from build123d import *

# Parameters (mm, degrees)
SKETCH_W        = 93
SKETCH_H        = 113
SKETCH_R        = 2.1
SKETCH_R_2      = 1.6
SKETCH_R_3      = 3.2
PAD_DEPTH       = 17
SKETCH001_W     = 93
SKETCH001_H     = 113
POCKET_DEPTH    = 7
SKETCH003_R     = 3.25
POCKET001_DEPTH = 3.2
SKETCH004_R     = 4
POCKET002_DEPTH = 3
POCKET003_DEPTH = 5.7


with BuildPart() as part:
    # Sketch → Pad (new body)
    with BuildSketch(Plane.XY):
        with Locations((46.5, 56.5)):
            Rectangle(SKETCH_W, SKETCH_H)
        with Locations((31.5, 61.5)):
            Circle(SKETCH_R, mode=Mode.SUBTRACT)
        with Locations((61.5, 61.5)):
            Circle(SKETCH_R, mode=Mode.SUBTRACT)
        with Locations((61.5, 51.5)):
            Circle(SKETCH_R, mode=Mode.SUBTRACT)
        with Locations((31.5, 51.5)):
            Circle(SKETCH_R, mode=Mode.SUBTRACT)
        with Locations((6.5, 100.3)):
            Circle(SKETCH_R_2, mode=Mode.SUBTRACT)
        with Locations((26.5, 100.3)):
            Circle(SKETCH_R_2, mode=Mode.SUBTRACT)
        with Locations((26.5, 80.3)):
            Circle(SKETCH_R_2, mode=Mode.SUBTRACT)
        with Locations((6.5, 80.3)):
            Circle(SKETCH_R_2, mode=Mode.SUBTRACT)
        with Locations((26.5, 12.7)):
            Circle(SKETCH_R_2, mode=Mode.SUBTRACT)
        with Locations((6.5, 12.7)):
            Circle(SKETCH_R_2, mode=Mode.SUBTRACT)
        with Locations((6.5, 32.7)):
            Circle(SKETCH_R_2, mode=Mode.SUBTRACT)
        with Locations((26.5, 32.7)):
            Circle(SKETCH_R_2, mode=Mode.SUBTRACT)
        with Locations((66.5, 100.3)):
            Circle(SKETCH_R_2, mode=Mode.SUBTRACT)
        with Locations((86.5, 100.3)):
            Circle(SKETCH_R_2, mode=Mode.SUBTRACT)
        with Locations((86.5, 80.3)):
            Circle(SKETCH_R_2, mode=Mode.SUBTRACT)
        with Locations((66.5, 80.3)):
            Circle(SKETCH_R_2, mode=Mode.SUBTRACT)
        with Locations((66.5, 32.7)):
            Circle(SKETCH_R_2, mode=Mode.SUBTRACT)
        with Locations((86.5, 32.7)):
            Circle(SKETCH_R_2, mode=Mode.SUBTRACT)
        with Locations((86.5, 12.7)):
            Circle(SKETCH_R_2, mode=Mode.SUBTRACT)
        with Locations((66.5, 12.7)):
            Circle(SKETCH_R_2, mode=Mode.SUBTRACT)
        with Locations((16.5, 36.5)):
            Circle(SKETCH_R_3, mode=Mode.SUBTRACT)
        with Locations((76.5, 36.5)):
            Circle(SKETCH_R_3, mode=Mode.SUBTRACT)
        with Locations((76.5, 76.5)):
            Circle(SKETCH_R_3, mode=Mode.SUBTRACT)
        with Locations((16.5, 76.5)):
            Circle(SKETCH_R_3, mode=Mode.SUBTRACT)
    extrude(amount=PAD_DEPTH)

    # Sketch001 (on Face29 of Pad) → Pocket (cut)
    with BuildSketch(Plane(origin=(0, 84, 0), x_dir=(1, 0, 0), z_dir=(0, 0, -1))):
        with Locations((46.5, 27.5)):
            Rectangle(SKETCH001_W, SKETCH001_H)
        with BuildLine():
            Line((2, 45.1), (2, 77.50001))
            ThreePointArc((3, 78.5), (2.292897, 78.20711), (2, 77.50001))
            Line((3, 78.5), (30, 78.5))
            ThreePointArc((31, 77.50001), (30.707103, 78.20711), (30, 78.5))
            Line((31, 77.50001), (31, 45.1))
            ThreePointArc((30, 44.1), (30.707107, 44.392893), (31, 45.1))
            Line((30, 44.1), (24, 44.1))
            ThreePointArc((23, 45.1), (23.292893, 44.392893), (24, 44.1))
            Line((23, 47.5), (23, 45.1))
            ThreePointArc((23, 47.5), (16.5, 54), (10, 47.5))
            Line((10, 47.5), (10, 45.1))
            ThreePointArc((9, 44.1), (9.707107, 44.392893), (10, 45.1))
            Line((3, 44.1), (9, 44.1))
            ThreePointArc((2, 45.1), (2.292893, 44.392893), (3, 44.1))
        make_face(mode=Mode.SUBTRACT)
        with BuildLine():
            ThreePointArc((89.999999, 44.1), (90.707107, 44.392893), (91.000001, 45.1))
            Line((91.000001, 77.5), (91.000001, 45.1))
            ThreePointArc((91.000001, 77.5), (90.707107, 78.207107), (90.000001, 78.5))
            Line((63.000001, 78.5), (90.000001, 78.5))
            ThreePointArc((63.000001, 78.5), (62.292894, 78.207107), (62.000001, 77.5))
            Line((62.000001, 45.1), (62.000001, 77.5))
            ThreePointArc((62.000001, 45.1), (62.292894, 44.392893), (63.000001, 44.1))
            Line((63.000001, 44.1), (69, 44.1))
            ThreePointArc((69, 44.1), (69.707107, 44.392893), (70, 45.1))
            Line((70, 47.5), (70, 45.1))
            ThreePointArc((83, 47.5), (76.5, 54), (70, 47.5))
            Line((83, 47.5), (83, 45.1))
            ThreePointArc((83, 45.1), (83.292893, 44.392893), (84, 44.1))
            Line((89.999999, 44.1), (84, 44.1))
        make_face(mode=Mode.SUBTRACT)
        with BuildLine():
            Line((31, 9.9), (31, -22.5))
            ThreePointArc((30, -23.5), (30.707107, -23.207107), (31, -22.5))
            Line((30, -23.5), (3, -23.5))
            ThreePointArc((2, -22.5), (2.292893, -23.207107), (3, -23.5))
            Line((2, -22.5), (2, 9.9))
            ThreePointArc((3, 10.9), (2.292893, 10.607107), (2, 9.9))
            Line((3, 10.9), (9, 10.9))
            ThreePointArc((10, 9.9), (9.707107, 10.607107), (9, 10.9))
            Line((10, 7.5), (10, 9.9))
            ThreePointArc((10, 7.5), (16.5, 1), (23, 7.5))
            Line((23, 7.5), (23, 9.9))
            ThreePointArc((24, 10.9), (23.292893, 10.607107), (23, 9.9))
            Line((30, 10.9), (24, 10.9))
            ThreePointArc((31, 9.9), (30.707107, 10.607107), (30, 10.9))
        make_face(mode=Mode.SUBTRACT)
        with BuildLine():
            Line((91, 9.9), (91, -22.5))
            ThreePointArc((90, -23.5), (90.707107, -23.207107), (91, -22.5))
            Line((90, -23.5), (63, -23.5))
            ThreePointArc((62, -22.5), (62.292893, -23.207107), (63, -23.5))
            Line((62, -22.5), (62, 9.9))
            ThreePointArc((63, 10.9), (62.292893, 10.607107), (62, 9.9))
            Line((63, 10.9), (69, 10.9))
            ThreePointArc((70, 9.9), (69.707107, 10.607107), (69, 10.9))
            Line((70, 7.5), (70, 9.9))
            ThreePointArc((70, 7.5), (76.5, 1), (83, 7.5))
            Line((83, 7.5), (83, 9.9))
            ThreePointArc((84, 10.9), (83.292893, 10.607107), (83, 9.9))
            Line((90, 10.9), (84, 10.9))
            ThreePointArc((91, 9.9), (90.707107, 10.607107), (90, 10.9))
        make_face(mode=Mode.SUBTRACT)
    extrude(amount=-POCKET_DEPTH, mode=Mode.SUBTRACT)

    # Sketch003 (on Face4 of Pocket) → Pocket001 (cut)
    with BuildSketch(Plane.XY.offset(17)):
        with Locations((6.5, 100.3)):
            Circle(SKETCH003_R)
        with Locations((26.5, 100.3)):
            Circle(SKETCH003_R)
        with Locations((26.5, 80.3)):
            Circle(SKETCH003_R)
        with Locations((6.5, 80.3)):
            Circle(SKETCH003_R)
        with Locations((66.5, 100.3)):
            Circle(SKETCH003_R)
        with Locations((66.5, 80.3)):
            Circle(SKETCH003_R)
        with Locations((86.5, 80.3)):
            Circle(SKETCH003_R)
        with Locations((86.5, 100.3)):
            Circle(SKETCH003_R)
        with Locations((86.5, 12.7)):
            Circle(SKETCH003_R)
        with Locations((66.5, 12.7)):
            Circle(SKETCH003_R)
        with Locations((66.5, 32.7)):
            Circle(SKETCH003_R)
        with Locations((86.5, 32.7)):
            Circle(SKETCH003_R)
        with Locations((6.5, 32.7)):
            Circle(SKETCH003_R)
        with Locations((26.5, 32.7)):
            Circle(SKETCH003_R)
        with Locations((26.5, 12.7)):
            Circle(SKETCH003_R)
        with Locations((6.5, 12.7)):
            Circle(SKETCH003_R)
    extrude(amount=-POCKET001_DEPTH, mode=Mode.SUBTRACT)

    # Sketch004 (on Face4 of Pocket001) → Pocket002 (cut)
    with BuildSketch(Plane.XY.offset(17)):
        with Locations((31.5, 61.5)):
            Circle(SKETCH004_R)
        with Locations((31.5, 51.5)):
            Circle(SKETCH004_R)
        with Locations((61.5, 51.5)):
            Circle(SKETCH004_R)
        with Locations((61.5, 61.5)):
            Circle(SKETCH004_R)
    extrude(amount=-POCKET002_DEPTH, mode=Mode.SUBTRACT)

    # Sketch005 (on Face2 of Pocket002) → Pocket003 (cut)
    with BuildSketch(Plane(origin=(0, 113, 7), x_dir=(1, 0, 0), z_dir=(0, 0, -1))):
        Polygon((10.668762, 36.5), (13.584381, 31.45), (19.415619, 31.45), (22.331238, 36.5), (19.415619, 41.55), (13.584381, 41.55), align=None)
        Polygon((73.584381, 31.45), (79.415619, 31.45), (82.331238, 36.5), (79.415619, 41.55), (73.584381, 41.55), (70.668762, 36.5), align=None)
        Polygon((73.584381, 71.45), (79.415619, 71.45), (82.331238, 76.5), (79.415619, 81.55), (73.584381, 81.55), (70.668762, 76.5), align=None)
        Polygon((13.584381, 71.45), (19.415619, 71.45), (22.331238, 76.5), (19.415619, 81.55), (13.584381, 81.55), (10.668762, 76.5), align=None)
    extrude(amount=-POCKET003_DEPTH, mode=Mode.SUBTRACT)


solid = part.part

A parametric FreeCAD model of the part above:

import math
import FreeCAD as App
import Part
import Sketcher
Q = App.Units.Quantity


def add_polygon(sketch, points):
    """Adds a closed chain of lines whose ends are joined by coincident constraints."""
    first, n = sketch.GeometryCount, len(points)
    for a, b in zip(points, points[1:] + points[:1]):
        sketch.addGeometry(Part.LineSegment(App.Vector(*a, 0), App.Vector(*b, 0)), False)
    for i in range(n):
        sketch.addConstraint(Sketcher.Constraint("Coincident", first + i, 2, first + (i + 1) % n, 1))

doc = App.newDocument("Part")
params = doc.addObject("Spreadsheet::Sheet", "Params")
for row, (alias, value) in enumerate([
    ("sketch1_diameter", "3.2 mm"),
    ("sketch1_diameter2", "6.4 mm"),
    ("sketch1_diameter3", "4.2 mm"),
    ("sketch1_width", "93 mm"),
    ("sketch1_height", "113 mm"),
    ("pad1_length", "17 mm"),
    ("sketch2_radius", "0.999999 mm"),
    ("sketch2_radius2", "6.5 mm"),
    ("sketch2_width", "93 mm"),
    ("sketch2_width2", "27 mm"),
    ("sketch2_height", "113 mm"),
    ("pocket1_length", "7 mm"),
    ("sketch3_diameter", "6.5 mm"),
    ("pocket2_length", "3.2 mm"),
    ("sketch4_diameter", "8 mm"),
    ("pocket3_length", "3 mm"),
    ("pocket4_length", "5.7 mm"),
], start=1):
    params.set(f"A{row}", alias)
    params.set(f"B{row}", "=" + value)
    params.setAlias(f"B{row}", alias)

body = doc.addObject("PartDesign::Body", "Body")

sketch1 = doc.addObject("Sketcher::SketchObject", "Sketch")
body.addObject(sketch1)
sketch1.AttachmentSupport = (doc.XY_Plane, [""])
sketch1.MapMode = "FlatFace"
add_polygon(sketch1, [(0, 113), (0, 0), (93, 0), (93, 113)])
sketch1.addGeometry(Part.Circle(App.Vector(6.5, 12.7, 0), App.Vector(0, 0, 1), 1.6), False)
sketch1.addGeometry(Part.Circle(App.Vector(6.5, 32.7, 0), App.Vector(0, 0, 1), 1.6), False)
sketch1.addGeometry(Part.Circle(App.Vector(26.5, 12.7, 0), App.Vector(0, 0, 1), 1.6), False)
sketch1.addGeometry(Part.Circle(App.Vector(26.5, 32.7, 0), App.Vector(0, 0, 1), 1.6), False)
sketch1.addGeometry(Part.Circle(App.Vector(16.5, 36.5, 0), App.Vector(0, 0, 1), 3.2), False)
sketch1.addGeometry(Part.Circle(App.Vector(31.5, 51.5, 0), App.Vector(0, 0, 1), 2.1), False)
sketch1.addGeometry(Part.Circle(App.Vector(66.5, 12.7, 0), App.Vector(0, 0, 1), 1.6), False)
sketch1.addGeometry(Part.Circle(App.Vector(66.5, 32.7, 0), App.Vector(0, 0, 1), 1.6), False)
sketch1.addGeometry(Part.Circle(App.Vector(86.5, 12.7, 0), App.Vector(0, 0, 1), 1.6), False)
sketch1.addGeometry(Part.Circle(App.Vector(86.5, 32.7, 0), App.Vector(0, 0, 1), 1.6), False)
sketch1.addGeometry(Part.Circle(App.Vector(61.5, 51.5, 0), App.Vector(0, 0, 1), 2.1), False)
sketch1.addGeometry(Part.Circle(App.Vector(76.5, 36.5, 0), App.Vector(0, 0, 1), 3.2), False)
sketch1.addGeometry(Part.Circle(App.Vector(16.5, 76.5, 0), App.Vector(0, 0, 1), 3.2), False)
sketch1.addGeometry(Part.Circle(App.Vector(31.5, 61.5, 0), App.Vector(0, 0, 1), 2.1), False)
sketch1.addGeometry(Part.Circle(App.Vector(6.5, 80.3, 0), App.Vector(0, 0, 1), 1.6), False)
sketch1.addGeometry(Part.Circle(App.Vector(6.5, 100.3, 0), App.Vector(0, 0, 1), 1.6), False)
sketch1.addGeometry(Part.Circle(App.Vector(26.5, 80.3, 0), App.Vector(0, 0, 1), 1.6), False)
sketch1.addGeometry(Part.Circle(App.Vector(26.5, 100.3, 0), App.Vector(0, 0, 1), 1.6), False)
sketch1.addGeometry(Part.Circle(App.Vector(61.5, 61.5, 0), App.Vector(0, 0, 1), 2.1), False)
sketch1.addGeometry(Part.Circle(App.Vector(76.5, 76.5, 0), App.Vector(0, 0, 1), 3.2), False)
sketch1.addGeometry(Part.Circle(App.Vector(66.5, 80.3, 0), App.Vector(0, 0, 1), 1.6), False)
sketch1.addGeometry(Part.Circle(App.Vector(66.5, 100.3, 0), App.Vector(0, 0, 1), 1.6), False)
sketch1.addGeometry(Part.Circle(App.Vector(86.5, 80.3, 0), App.Vector(0, 0, 1), 1.6), False)
sketch1.addGeometry(Part.Circle(App.Vector(86.5, 100.3, 0), App.Vector(0, 0, 1), 1.6), False)
sketch1.addConstraint(Sketcher.Constraint("Vertical", 0))
sketch1.addConstraint(Sketcher.Constraint("Horizontal", 1))
sketch1.addConstraint(Sketcher.Constraint("Vertical", 2))
sketch1.addConstraint(Sketcher.Constraint("Horizontal", 3))
sketch1.addConstraint(Sketcher.Constraint("Coincident", 0, 2, -1, 1))
sketch1.addConstraint(Sketcher.Constraint("Equal", 4, 5))
sketch1.addConstraint(Sketcher.Constraint("Equal", 5, 6))
sketch1.addConstraint(Sketcher.Constraint("Equal", 6, 7))
sketch1.addConstraint(Sketcher.Constraint("Equal", 7, 10))
sketch1.addConstraint(Sketcher.Constraint("Equal", 10, 11))
sketch1.addConstraint(Sketcher.Constraint("Equal", 11, 12))
sketch1.addConstraint(Sketcher.Constraint("Equal", 12, 13))
sketch1.addConstraint(Sketcher.Constraint("Equal", 9, 14))
sketch1.addConstraint(Sketcher.Constraint("Equal", 8, 15))
sketch1.addConstraint(Sketcher.Constraint("Equal", 15, 16))
sketch1.addConstraint(Sketcher.Constraint("Equal", 14, 17))
sketch1.addConstraint(Sketcher.Constraint("Equal", 13, 18))
sketch1.addConstraint(Sketcher.Constraint("Equal", 18, 19))
sketch1.addConstraint(Sketcher.Constraint("Equal", 19, 20))
sketch1.addConstraint(Sketcher.Constraint("Equal", 20, 21))
sketch1.addConstraint(Sketcher.Constraint("Equal", 17, 22))
sketch1.addConstraint(Sketcher.Constraint("Equal", 16, 23))
sketch1.addConstraint(Sketcher.Constraint("Equal", 21, 24))
sketch1.addConstraint(Sketcher.Constraint("Equal", 24, 25))
sketch1.addConstraint(Sketcher.Constraint("Equal", 25, 26))
sketch1.addConstraint(Sketcher.Constraint("Equal", 26, 27))
sketch1.addConstraint(Sketcher.Constraint("Horizontal", 4, 3, 6, 3))
sketch1.addConstraint(Sketcher.Constraint("Horizontal", 5, 3, 7, 3))
sketch1.addConstraint(Sketcher.Constraint("Horizontal", 6, 3, 10, 3))
sketch1.addConstraint(Sketcher.Constraint("Horizontal", 7, 3, 11, 3))
sketch1.addConstraint(Sketcher.Constraint("Horizontal", 10, 3, 12, 3))
sketch1.addConstraint(Sketcher.Constraint("Horizontal", 11, 3, 13, 3))
sketch1.addConstraint(Sketcher.Constraint("Horizontal", 9, 3, 14, 3))
sketch1.addConstraint(Sketcher.Constraint("Horizontal", 8, 3, 15, 3))
sketch1.addConstraint(Sketcher.Constraint("Horizontal", 18, 3, 20, 3))
sketch1.addConstraint(Sketcher.Constraint("Horizontal", 19, 3, 21, 3))
sketch1.addConstraint(Sketcher.Constraint("Horizontal", 17, 3, 22, 3))
sketch1.addConstraint(Sketcher.Constraint("Horizontal", 16, 3, 23, 3))
sketch1.addConstraint(Sketcher.Constraint("Horizontal", 20, 3, 24, 3))
sketch1.addConstraint(Sketcher.Constraint("Horizontal", 21, 3, 25, 3))
sketch1.addConstraint(Sketcher.Constraint("Horizontal", 24, 3, 26, 3))
sketch1.addConstraint(Sketcher.Constraint("Horizontal", 25, 3, 27, 3))
sketch1.addConstraint(Sketcher.Constraint("Vertical", 4, 3, 5, 3))
sketch1.addConstraint(Sketcher.Constraint("Vertical", 6, 3, 7, 3))
sketch1.addConstraint(Sketcher.Constraint("Vertical", 10, 3, 11, 3))
sketch1.addConstraint(Sketcher.Constraint("Vertical", 12, 3, 13, 3))
sketch1.addConstraint(Sketcher.Constraint("Vertical", 8, 3, 16, 3))
sketch1.addConstraint(Sketcher.Constraint("Vertical", 9, 3, 17, 3))
sketch1.addConstraint(Sketcher.Constraint("Vertical", 5, 3, 18, 3))
sketch1.addConstraint(Sketcher.Constraint("Vertical", 18, 3, 19, 3))
sketch1.addConstraint(Sketcher.Constraint("Vertical", 7, 3, 20, 3))
sketch1.addConstraint(Sketcher.Constraint("Vertical", 20, 3, 21, 3))
sketch1.addConstraint(Sketcher.Constraint("Vertical", 14, 3, 22, 3))
sketch1.addConstraint(Sketcher.Constraint("Vertical", 15, 3, 23, 3))
sketch1.addConstraint(Sketcher.Constraint("Vertical", 11, 3, 24, 3))
sketch1.addConstraint(Sketcher.Constraint("Vertical", 24, 3, 25, 3))
sketch1.addConstraint(Sketcher.Constraint("Vertical", 13, 3, 26, 3))
sketch1.addConstraint(Sketcher.Constraint("Vertical", 26, 3, 27, 3))
sketch1.addConstraint(Sketcher.Constraint("Diameter", 4, 3.2))
sketch1.addConstraint(Sketcher.Constraint("Diameter", 8, 6.4))
sketch1.addConstraint(Sketcher.Constraint("Diameter", 9, 4.2))
sketch1.addConstraint(Sketcher.Constraint("DistanceX", 1, 1, 1, 2, 93.0))
sketch1.addConstraint(Sketcher.Constraint("DistanceY", 0, 2, 0, 1, 113.0))
sketch1.addConstraint(Sketcher.Constraint("DistanceY", 4, 3, 5, 3, 20.0))
sketch1.addConstraint(Sketcher.Constraint("DistanceX", 4, 3, 6, 3, 20.0))
sketch1.addConstraint(Sketcher.Constraint("DistanceX", 5, 3, 8, 3, 10.0))
sketch1.addConstraint(Sketcher.Constraint("DistanceX", 7, 3, 9, 3, 5.0))
sketch1.addConstraint(Sketcher.Constraint("DistanceY", 8, 3, 9, 3, 15.0))
sketch1.addConstraint(Sketcher.Constraint("DistanceX", 6, 3, 10, 3, 40.0))
sketch1.addConstraint(Sketcher.Constraint("DistanceX", 10, 3, 12, 3, 20.0))
sketch1.addConstraint(Sketcher.Constraint("DistanceX", 14, 3, 11, 3, 5.0))
sketch1.addConstraint(Sketcher.Constraint("DistanceX", 11, 3, 15, 3, 10.0))
sketch1.addConstraint(Sketcher.Constraint("DistanceY", 9, 3, 16, 3, 25.0))
sketch1.addConstraint(Sketcher.Constraint("DistanceY", 9, 3, 17, 3, 10.0))
sketch1.addConstraint(Sketcher.Constraint("DistanceY", 18, 3, 19, 3, 20.0))
sketch1.addConstraint(Sketcher.Constraint("DistanceX", -1, 1, 4, 3, 6.5))
sketch1.addConstraint(Sketcher.Constraint("DistanceY", -1, 1, 4, 3, 12.7))
sketch1.addConstraint(Sketcher.Constraint("DistanceY", -1, 1, 8, 3, 36.5))
sketch1.addConstraint(Sketcher.Constraint("DistanceY", -1, 1, 18, 3, 80.3))
sketch1.setExpression("Constraints[62]", "Params.sketch1_diameter")
sketch1.setExpression("Constraints[63]", "Params.sketch1_diameter2")
sketch1.setExpression("Constraints[64]", "Params.sketch1_diameter3")
sketch1.setExpression("Constraints[65]", "Params.sketch1_width")
sketch1.setExpression("Constraints[66]", "Params.sketch1_height")
pad1 = doc.addObject("PartDesign::Pad", "Pad")
body.addObject(pad1)
pad1.Profile = sketch1
pad1.setExpression("Length", "Params.pad1_length")

sketch2 = doc.addObject("Sketcher::SketchObject", "Sketch001")
body.addObject(sketch2)
sketch2.AttachmentSupport = (doc.XY_Plane, [""])
sketch2.MapMode = "FlatFace"
add_polygon(sketch2, [(0, 0), (0, 113), (93, 113), (93, 0)])
sketch2.addGeometry(Part.ArcOfCircle(Part.Circle(App.Vector(30.000001, 74.099999, 0), App.Vector(0, 0, 1), 0.999999), math.radians(-90.000043), math.radians(0.000043)), False)
sketch2.addGeometry(Part.LineSegment(App.Vector(31, 74.1, 0), App.Vector(31, 106.5, 0)), False)
sketch2.addGeometry(Part.ArcOfCircle(Part.Circle(App.Vector(30.000001, 106.500001, 0), App.Vector(0, 0, 1), 0.999999), math.radians(-0.000043), math.radians(90.000043)), False)
sketch2.addGeometry(Part.LineSegment(App.Vector(30, 107.5, 0), App.Vector(3, 107.5, 0)), False)
sketch2.addGeometry(Part.ArcOfCircle(Part.Circle(App.Vector(2.999999, 106.500001, 0), App.Vector(0, 0, 1), 0.999999), math.radians(89.999957), math.radians(180.000043)), False)
sketch2.addGeometry(Part.LineSegment(App.Vector(2, 106.5, 0), App.Vector(2, 74.1, 0)), False)
sketch2.addGeometry(Part.ArcOfCircle(Part.Circle(App.Vector(2.999999, 74.099999, 0), App.Vector(0, 0, 1), 0.999999), math.radians(179.999957), math.radians(270.000043)), False)
sketch2.addGeometry(Part.LineSegment(App.Vector(3, 73.1, 0), App.Vector(9, 73.1, 0)), False)
sketch2.addGeometry(Part.ArcOfCircle(Part.Circle(App.Vector(9.000001, 74.099999, 0), App.Vector(0, 0, 1), 0.999999), math.radians(-90.000043), math.radians(0.000043)), False)
sketch2.addGeometry(Part.LineSegment(App.Vector(10, 74.1, 0), App.Vector(10, 76.5, 0)), False)
sketch2.addGeometry(Part.ArcOfCircle(Part.Circle(App.Vector(16.5, 76.5, 0), App.Vector(0, 0, 1), 6.5), math.radians(0), math.radians(180)), False)
sketch2.addGeometry(Part.LineSegment(App.Vector(23, 76.5, 0), App.Vector(23, 74.1, 0)), False)
sketch2.addGeometry(Part.ArcOfCircle(Part.Circle(App.Vector(23.999999, 74.099999, 0), App.Vector(0, 0, 1), 0.999999), math.radians(179.999957), math.radians(270.000043)), False)
sketch2.addGeometry(Part.LineSegment(App.Vector(24, 73.1, 0), App.Vector(30, 73.1, 0)), False)
sketch2.addGeometry(Part.ArcOfCircle(Part.Circle(App.Vector(90.000001, 74.099999, 0), App.Vector(0, 0, 1), 0.999999), math.radians(-90.000043), math.radians(0.000043)), False)
sketch2.addGeometry(Part.LineSegment(App.Vector(91, 74.1, 0), App.Vector(91, 106.5, 0)), False)
sketch2.addGeometry(Part.ArcOfCircle(Part.Circle(App.Vector(90.000001, 106.500001, 0), App.Vector(0, 0, 1), 0.999999), math.radians(-0.000043), math.radians(90.000043)), False)
sketch2.addGeometry(Part.LineSegment(App.Vector(90, 107.5, 0), App.Vector(63, 107.5, 0)), False)
sketch2.addGeometry(Part.ArcOfCircle(Part.Circle(App.Vector(62.999999, 106.500001, 0), App.Vector(0, 0, 1), 0.999999), math.radians(89.999957), math.radians(180.000043)), False)
sketch2.addGeometry(Part.LineSegment(App.Vector(62, 106.5, 0), App.Vector(62, 74.1, 0)), False)
sketch2.addGeometry(Part.ArcOfCircle(Part.Circle(App.Vector(62.999999, 74.099999, 0), App.Vector(0, 0, 1), 0.999999), math.radians(179.999957), math.radians(270.000043)), False)
sketch2.addGeometry(Part.LineSegment(App.Vector(63, 73.1, 0), App.Vector(69, 73.1, 0)), False)
sketch2.addGeometry(Part.ArcOfCircle(Part.Circle(App.Vector(69.000001, 74.099999, 0), App.Vector(0, 0, 1), 0.999999), math.radians(-90.000043), math.radians(0.000043)), False)
sketch2.addGeometry(Part.LineSegment(App.Vector(70, 74.1, 0), App.Vector(70, 76.5, 0)), False)
sketch2.addGeometry(Part.ArcOfCircle(Part.Circle(App.Vector(76.5, 76.5, 0), App.Vector(0, 0, 1), 6.5), math.radians(0), math.radians(180)), False)
sketch2.addGeometry(Part.LineSegment(App.Vector(83, 76.5, 0), App.Vector(83, 74.1, 0)), False)
sketch2.addGeometry(Part.ArcOfCircle(Part.Circle(App.Vector(83.999999, 74.099999, 0), App.Vector(0, 0, 1), 0.999999), math.radians(179.999957), math.radians(270.000043)), False)
sketch2.addGeometry(Part.LineSegment(App.Vector(84, 73.1, 0), App.Vector(90, 73.1, 0)), False)
sketch2.addGeometry(Part.ArcOfCircle(Part.Circle(App.Vector(2.999999, 38.900001, 0), App.Vector(0, 0, 1), 0.999999), math.radians(89.999957), math.radians(180.000043)), False)
sketch2.addGeometry(Part.LineSegment(App.Vector(2, 38.9, 0), App.Vector(2, 6.49999, 0)), False)
sketch2.addGeometry(Part.ArcOfCircle(Part.Circle(App.Vector(3.000001, 6.500001, 0), App.Vector(0, 0, 1), 1.000001), math.radians(-179.999372), math.radians(-90.000055)), False)
sketch2.addGeometry(Part.LineSegment(App.Vector(3, 5.5, 0), App.Vector(30, 5.5, 0)), False)
sketch2.addGeometry(Part.ArcOfCircle(Part.Circle(App.Vector(29.999999, 6.500001, 0), App.Vector(0, 0, 1), 1.000001), math.radians(-89.999945), math.radians(-0.000628)), False)
sketch2.addGeometry(Part.LineSegment(App.Vector(31, 6.49999, 0), App.Vector(31, 38.9, 0)), False)
sketch2.addGeometry(Part.ArcOfCircle(Part.Circle(App.Vector(30.000001, 38.900001, 0), App.Vector(0, 0, 1), 0.999999), math.radians(-0.000043), math.radians(90.000043)), False)
sketch2.addGeometry(Part.LineSegment(App.Vector(30, 39.9, 0), App.Vector(24, 39.9, 0)), False)
sketch2.addGeometry(Part.ArcOfCircle(Part.Circle(App.Vector(23.999999, 38.900001, 0), App.Vector(0, 0, 1), 0.999999), math.radians(89.999957), math.radians(180.000043)), False)
sketch2.addGeometry(Part.LineSegment(App.Vector(23, 38.9, 0), App.Vector(23, 36.5, 0)), False)
sketch2.addGeometry(Part.ArcOfCircle(Part.Circle(App.Vector(16.5, 36.5, 0), App.Vector(0, 0, 1), 6.5), math.radians(180), math.radians(360)), False)
sketch2.addGeometry(Part.LineSegment(App.Vector(10, 36.5, 0), App.Vector(10, 38.9, 0)), False)
sketch2.addGeometry(Part.ArcOfCircle(Part.Circle(App.Vector(9.000001, 38.900001, 0), App.Vector(0, 0, 1), 0.999999), math.radians(-0.000043), math.radians(90.000043)), False)
sketch2.addGeometry(Part.LineSegment(App.Vector(9, 39.9, 0), App.Vector(3, 39.9, 0)), False)
sketch2.addGeometry(Part.ArcOfCircle(Part.Circle(App.Vector(90, 38.899999, 0), App.Vector(0, 0, 1), 1.000001), math.radians(0.000055), math.radians(90.00006)), False)
sketch2.addGeometry(Part.LineSegment(App.Vector(89.999999, 39.9, 0), App.Vector(84, 39.9, 0)), False)
sketch2.addGeometry(Part.ArcOfCircle(Part.Circle(App.Vector(83.999999, 38.900001, 0), App.Vector(0, 0, 1), 0.999999), math.radians(89.999957), math.radians(180.000043)), False)
sketch2.addGeometry(Part.LineSegment(App.Vector(83, 38.9, 0), App.Vector(83, 36.5, 0)), False)
sketch2.addGeometry(Part.ArcOfCircle(Part.Circle(App.Vector(76.5, 36.5, 0), App.Vector(0, 0, 1), 6.5), math.radians(180), math.radians(360)), False)
sketch2.addGeometry(Part.LineSegment(App.Vector(70, 36.5, 0), App.Vector(70, 38.9, 0)), False)
sketch2.addGeometry(Part.ArcOfCircle(Part.Circle(App.Vector(69.000001, 38.900001, 0), App.Vector(0, 0, 1), 0.999999), math.radians(-0.000043), math.radians(90.000043)), False)
sketch2.addGeometry(Part.LineSegment(App.Vector(69, 39.9, 0), App.Vector(63.000001, 39.9, 0)), False)
sketch2.addGeometry(Part.ArcOfCircle(Part.Circle(App.Vector(63, 38.900001, 0), App.Vector(0, 0, 1), 0.999999), math.radians(89.999957), math.radians(180.000043)), False)
sketch2.addGeometry(Part.LineSegment(App.Vector(62.000001, 38.9, 0), App.Vector(62.000001, 6.5, 0)), False)
sketch2.addGeometry(Part.ArcOfCircle(Part.Circle(App.Vector(63, 6.499999, 0), App.Vector(0, 0, 1), 0.999999), math.radians(179.999957), math.radians(270.000043)), False)
sketch2.addGeometry(Part.LineSegment(App.Vector(63.000001, 5.5, 0), App.Vector(90.000001, 5.5, 0)), False)
sketch2.addGeometry(Part.ArcOfCircle(Part.Circle(App.Vector(90, 6.500001, 0), App.Vector(0, 0, 1), 1.000001), math.radians(-89.999945), math.radians(-0.000055)), False)
sketch2.addGeometry(Part.LineSegment(App.Vector(91.000001, 6.5, 0), App.Vector(91.000001, 38.9, 0)), False)
sketch2.addConstraint(Sketcher.Constraint("Tangent", 4, 2, 5, 1))
sketch2.addConstraint(Sketcher.Constraint("Tangent", 5, 2, 6, 1))
sketch2.addConstraint(Sketcher.Constraint("Tangent", 6, 2, 7, 1))
sketch2.addConstraint(Sketcher.Constraint("Tangent", 7, 2, 8, 1))
sketch2.addConstraint(Sketcher.Constraint("Tangent", 8, 2, 9, 1))
sketch2.addConstraint(Sketcher.Constraint("Tangent", 9, 2, 10, 1))
sketch2.addConstraint(Sketcher.Constraint("Tangent", 10, 2, 11, 1))
sketch2.addConstraint(Sketcher.Constraint("Tangent", 11, 2, 12, 1))
sketch2.addConstraint(Sketcher.Constraint("Tangent", 12, 2, 13, 1))
sketch2.addConstraint(Sketcher.Constraint("Tangent", 13, 2, 14, 2))
sketch2.addConstraint(Sketcher.Constraint("Tangent", 14, 1, 15, 1))
sketch2.addConstraint(Sketcher.Constraint("Tangent", 15, 2, 16, 1))
sketch2.addConstraint(Sketcher.Constraint("Tangent", 16, 2, 17, 1))
sketch2.addConstraint(Sketcher.Constraint("Tangent", 17, 2, 4, 1))
sketch2.addConstraint(Sketcher.Constraint("Tangent", 18, 2, 19, 1))
sketch2.addConstraint(Sketcher.Constraint("Tangent", 19, 2, 20, 1))
sketch2.addConstraint(Sketcher.Constraint("Tangent", 20, 2, 21, 1))
sketch2.addConstraint(Sketcher.Constraint("Tangent", 21, 2, 22, 1))
sketch2.addConstraint(Sketcher.Constraint("Tangent", 22, 2, 23, 1))
sketch2.addConstraint(Sketcher.Constraint("Tangent", 23, 2, 24, 1))
sketch2.addConstraint(Sketcher.Constraint("Tangent", 24, 2, 25, 1))
sketch2.addConstraint(Sketcher.Constraint("Tangent", 25, 2, 26, 1))
sketch2.addConstraint(Sketcher.Constraint("Tangent", 26, 2, 27, 1))
sketch2.addConstraint(Sketcher.Constraint("Tangent", 27, 2, 28, 2))
sketch2.addConstraint(Sketcher.Constraint("Tangent", 28, 1, 29, 1))
sketch2.addConstraint(Sketcher.Constraint("Tangent", 29, 2, 30, 1))
sketch2.addConstraint(Sketcher.Constraint("Tangent", 30, 2, 31, 1))
sketch2.addConstraint(Sketcher.Constraint("Tangent", 31, 2, 18, 1))
sketch2.addConstraint(Sketcher.Constraint("Tangent", 32, 2, 33, 1))
sketch2.addConstraint(Sketcher.Constraint("Coincident", 33, 2, 34, 1))
sketch2.addConstraint(Sketcher.Constraint("Tangent", 34, 2, 35, 1))
sketch2.addConstraint(Sketcher.Constraint("Tangent", 35, 2, 36, 1))
sketch2.addConstraint(Sketcher.Constraint("Coincident", 36, 2, 37, 1))
sketch2.addConstraint(Sketcher.Constraint("Tangent", 37, 2, 38, 1))
sketch2.addConstraint(Sketcher.Constraint("Tangent", 38, 2, 39, 1))
sketch2.addConstraint(Sketcher.Constraint("Tangent", 39, 2, 40, 1))
sketch2.addConstraint(Sketcher.Constraint("Tangent", 40, 2, 41, 1))
sketch2.addConstraint(Sketcher.Constraint("Tangent", 41, 2, 42, 2))
sketch2.addConstraint(Sketcher.Constraint("Tangent", 42, 1, 43, 1))
sketch2.addConstraint(Sketcher.Constraint("Tangent", 43, 2, 44, 1))
sketch2.addConstraint(Sketcher.Constraint("Tangent", 44, 2, 45, 1))
sketch2.addConstraint(Sketcher.Constraint("Tangent", 45, 2, 32, 1))
sketch2.addConstraint(Sketcher.Constraint("Tangent", 46, 2, 47, 1))
sketch2.addConstraint(Sketcher.Constraint("Tangent", 47, 2, 48, 1))
sketch2.addConstraint(Sketcher.Constraint("Tangent", 48, 2, 49, 1))
sketch2.addConstraint(Sketcher.Constraint("Tangent", 49, 2, 50, 2))
sketch2.addConstraint(Sketcher.Constraint("Tangent", 50, 1, 51, 1))
sketch2.addConstraint(Sketcher.Constraint("Tangent", 51, 2, 52, 1))
sketch2.addConstraint(Sketcher.Constraint("Tangent", 52, 2, 53, 1))
sketch2.addConstraint(Sketcher.Constraint("Tangent", 53, 2, 54, 1))
sketch2.addConstraint(Sketcher.Constraint("Tangent", 54, 2, 55, 1))
sketch2.addConstraint(Sketcher.Constraint("Tangent", 55, 2, 56, 1))
sketch2.addConstraint(Sketcher.Constraint("Tangent", 56, 2, 57, 1))
sketch2.addConstraint(Sketcher.Constraint("Tangent", 57, 2, 58, 1))
sketch2.addConstraint(Sketcher.Constraint("Tangent", 58, 2, 59, 1))
sketch2.addConstraint(Sketcher.Constraint("Tangent", 59, 2, 46, 1))
sketch2.addConstraint(Sketcher.Constraint("Vertical", 0))
sketch2.addConstraint(Sketcher.Constraint("Horizontal", 1))
sketch2.addConstraint(Sketcher.Constraint("Vertical", 2))
sketch2.addConstraint(Sketcher.Constraint("Horizontal", 3))
sketch2.addConstraint(Sketcher.Constraint("Vertical", 5))
sketch2.addConstraint(Sketcher.Constraint("Horizontal", 7))
sketch2.addConstraint(Sketcher.Constraint("Vertical", 9))
sketch2.addConstraint(Sketcher.Constraint("Horizontal", 11))
sketch2.addConstraint(Sketcher.Constraint("Vertical", 13))
sketch2.addConstraint(Sketcher.Constraint("Vertical", 15))
sketch2.addConstraint(Sketcher.Constraint("Horizontal", 17))
sketch2.addConstraint(Sketcher.Constraint("Vertical", 19))
sketch2.addConstraint(Sketcher.Constraint("Horizontal", 21))
sketch2.addConstraint(Sketcher.Constraint("Vertical", 23))
sketch2.addConstraint(Sketcher.Constraint("Horizontal", 25))
sketch2.addConstraint(Sketcher.Constraint("Vertical", 27))
sketch2.addConstraint(Sketcher.Constraint("Vertical", 29))
sketch2.addConstraint(Sketcher.Constraint("Horizontal", 31))
sketch2.addConstraint(Sketcher.Constraint("Vertical", 33))
sketch2.addConstraint(Sketcher.Constraint("Horizontal", 35))
sketch2.addConstraint(Sketcher.Constraint("Vertical", 37))
sketch2.addConstraint(Sketcher.Constraint("Horizontal", 39))
sketch2.addConstraint(Sketcher.Constraint("Vertical", 41))
sketch2.addConstraint(Sketcher.Constraint("Vertical", 43))
sketch2.addConstraint(Sketcher.Constraint("Horizontal", 45))
sketch2.addConstraint(Sketcher.Constraint("Horizontal", 47))
sketch2.addConstraint(Sketcher.Constraint("Vertical", 49))
sketch2.addConstraint(Sketcher.Constraint("Vertical", 51))
sketch2.addConstraint(Sketcher.Constraint("Horizontal", 53))
sketch2.addConstraint(Sketcher.Constraint("Vertical", 55))
sketch2.addConstraint(Sketcher.Constraint("Horizontal", 57))
sketch2.addConstraint(Sketcher.Constraint("Vertical", 59))
sketch2.addConstraint(Sketcher.Constraint("Coincident", 3, 2, -1, 1))
sketch2.addConstraint(Sketcher.Constraint("Equal", 4, 6))
sketch2.addConstraint(Sketcher.Constraint("Equal", 6, 8))
sketch2.addConstraint(Sketcher.Constraint("Equal", 8, 10))
sketch2.addConstraint(Sketcher.Constraint("Equal", 10, 12))
sketch2.addConstraint(Sketcher.Constraint("Equal", 12, 16))
sketch2.addConstraint(Sketcher.Constraint("Equal", 16, 18))
sketch2.addConstraint(Sketcher.Constraint("Equal", 18, 20))
sketch2.addConstraint(Sketcher.Constraint("Equal", 20, 22))
sketch2.addConstraint(Sketcher.Constraint("Equal", 22, 24))
sketch2.addConstraint(Sketcher.Constraint("Equal", 24, 26))
sketch2.addConstraint(Sketcher.Constraint("Equal", 14, 28))
sketch2.addConstraint(Sketcher.Constraint("Equal", 26, 30))
sketch2.addConstraint(Sketcher.Constraint("Equal", 30, 32))
sketch2.addConstraint(Sketcher.Constraint("Equal", 32, 34))
sketch2.addConstraint(Sketcher.Constraint("Equal", 34, 36))
sketch2.addConstraint(Sketcher.Constraint("Equal", 36, 38))
sketch2.addConstraint(Sketcher.Constraint("Equal", 38, 40))
sketch2.addConstraint(Sketcher.Constraint("Equal", 28, 42))
sketch2.addConstraint(Sketcher.Constraint("Equal", 40, 44))
sketch2.addConstraint(Sketcher.Constraint("Equal", 44, 46))
sketch2.addConstraint(Sketcher.Constraint("Equal", 46, 48))
sketch2.addConstraint(Sketcher.Constraint("Equal", 42, 50))
sketch2.addConstraint(Sketcher.Constraint("Equal", 48, 52))
sketch2.addConstraint(Sketcher.Constraint("Equal", 52, 54))
sketch2.addConstraint(Sketcher.Constraint("Equal", 54, 56))
sketch2.addConstraint(Sketcher.Constraint("Equal", 56, 58))
sketch2.addConstraint(Sketcher.Constraint("Horizontal", 4, 3, 10, 3))
sketch2.addConstraint(Sketcher.Constraint("Horizontal", 16, 3, 18, 3))
sketch2.addConstraint(Sketcher.Constraint("Horizontal", 8, 3, 20, 3))
sketch2.addConstraint(Sketcher.Constraint("Horizontal", 18, 3, 24, 3))
sketch2.addConstraint(Sketcher.Constraint("Horizontal", 14, 3, 28, 3))
sketch2.addConstraint(Sketcher.Constraint("Horizontal", 32, 3, 38, 3))
sketch2.addConstraint(Sketcher.Constraint("Horizontal", 44, 3, 46, 3))
sketch2.addConstraint(Sketcher.Constraint("Horizontal", 42, 3, 50, 3))
sketch2.addConstraint(Sketcher.Constraint("Horizontal", 48, 3, 52, 3))
sketch2.addConstraint(Sketcher.Constraint("Horizontal", 36, 3, 56, 3))
sketch2.addConstraint(Sketcher.Constraint("Horizontal", 33, 2, 36, 2))
sketch2.addConstraint(Sketcher.Constraint("Vertical", 10, 3, 32, 3))
sketch2.addConstraint(Sketcher.Constraint("Vertical", 6, 3, 36, 3))
sketch2.addConstraint(Sketcher.Constraint("Vertical", 16, 3, 40, 3))
sketch2.addConstraint(Sketcher.Constraint("Vertical", 20, 3, 46, 3))
sketch2.addConstraint(Sketcher.Constraint("Vertical", 30, 3, 48, 3))
sketch2.addConstraint(Sketcher.Constraint("Vertical", 24, 3, 54, 3))
sketch2.addConstraint(Sketcher.Constraint("Equal", 11, 17))
sketch2.addConstraint(Sketcher.Constraint("Equal", 7, 21))
sketch2.addConstraint(Sketcher.Constraint("Equal", 17, 25))
sketch2.addConstraint(Sketcher.Constraint("Equal", 29, 41))
sketch2.addConstraint(Sketcher.Constraint("Equal", 23, 55))
sketch2.addConstraint(Sketcher.Constraint("Radius", 4, 0.999999))
sketch2.addConstraint(Sketcher.Constraint("Radius", 14, 6.5))
sketch2.addConstraint(Sketcher.Constraint("DistanceX", 1, 1, 1, 2, 93.0))
sketch2.addConstraint(Sketcher.Constraint("DistanceX", 7, 2, 7, 1, 27.0))
sketch2.addConstraint(Sketcher.Constraint("DistanceY", 0, 1, 0, 2, 113.0))
sketch2.addConstraint(Sketcher.Constraint("DistanceY", 5, 1, 5, 2, 32.4))
sketch2.addConstraint(Sketcher.Constraint("DistanceY", 13, 1, 13, 2, 2.4))
sketch2.addConstraint(Sketcher.Constraint("DistanceX", -1, 1, 4, 3, 30.000001))
sketch2.addConstraint(Sketcher.Constraint("DistanceX", -1, 1, 18, 3, 90.000001))
sketch2.addConstraint(Sketcher.Constraint("DistanceY", -1, 1, 4, 3, 74.099999))
sketch2.addConstraint(Sketcher.Constraint("DistanceY", -1, 1, 32, 3, 38.900001))
sketch2.addConstraint(Sketcher.Constraint("DistanceY", 33, 2, 33, 1, 32.40001))
sketch2.setExpression("Constraints[141]", "Params.sketch2_radius")
sketch2.setExpression("Constraints[142]", "Params.sketch2_radius2")
sketch2.setExpression("Constraints[143]", "Params.sketch2_width")
sketch2.setExpression("Constraints[144]", "Params.sketch2_width2")
sketch2.setExpression("Constraints[145]", "Params.sketch2_height")
pocket1 = doc.addObject("PartDesign::Pocket", "Pocket")
body.addObject(pocket1)
pocket1.Profile = sketch2
pocket1.setExpression("Length", "Params.pocket1_length")
pocket1.Reversed = True

sketch3 = doc.addObject("Sketcher::SketchObject", "Sketch002")
body.addObject(sketch3)
sketch3.AttachmentSupport = (doc.XY_Plane, [""])
sketch3.MapMode = "FlatFace"
sketch3.AttachmentOffset = App.Placement(App.Vector(0, 0, 17), App.Rotation())
sketch3.addGeometry(Part.Circle(App.Vector(6.5, 100.3, 0), App.Vector(0, 0, 1), 3.25), False)
sketch3.addGeometry(Part.Circle(App.Vector(26.5, 100.3, 0), App.Vector(0, 0, 1), 3.25), False)
sketch3.addGeometry(Part.Circle(App.Vector(26.5, 80.3, 0), App.Vector(0, 0, 1), 3.25), False)
sketch3.addGeometry(Part.Circle(App.Vector(6.5, 80.3, 0), App.Vector(0, 0, 1), 3.25), False)
sketch3.addGeometry(Part.Circle(App.Vector(66.5, 100.3, 0), App.Vector(0, 0, 1), 3.25), False)
sketch3.addGeometry(Part.Circle(App.Vector(66.5, 80.3, 0), App.Vector(0, 0, 1), 3.25), False)
sketch3.addGeometry(Part.Circle(App.Vector(86.5, 80.3, 0), App.Vector(0, 0, 1), 3.25), False)
sketch3.addGeometry(Part.Circle(App.Vector(86.5, 100.3, 0), App.Vector(0, 0, 1), 3.25), False)
sketch3.addGeometry(Part.Circle(App.Vector(86.5, 12.7, 0), App.Vector(0, 0, 1), 3.25), False)
sketch3.addGeometry(Part.Circle(App.Vector(66.5, 12.7, 0), App.Vector(0, 0, 1), 3.25), False)
sketch3.addGeometry(Part.Circle(App.Vector(66.5, 32.7, 0), App.Vector(0, 0, 1), 3.25), False)
sketch3.addGeometry(Part.Circle(App.Vector(86.5, 32.7, 0), App.Vector(0, 0, 1), 3.25), False)
sketch3.addGeometry(Part.Circle(App.Vector(6.5, 32.7, 0), App.Vector(0, 0, 1), 3.25), False)
sketch3.addGeometry(Part.Circle(App.Vector(26.5, 32.7, 0), App.Vector(0, 0, 1), 3.25), False)
sketch3.addGeometry(Part.Circle(App.Vector(26.5, 12.7, 0), App.Vector(0, 0, 1), 3.25), False)
sketch3.addGeometry(Part.Circle(App.Vector(6.5, 12.7, 0), App.Vector(0, 0, 1), 3.25), False)
sketch3.addConstraint(Sketcher.Constraint("Equal", 0, 1))
sketch3.addConstraint(Sketcher.Constraint("Equal", 1, 2))
sketch3.addConstraint(Sketcher.Constraint("Equal", 2, 3))
sketch3.addConstraint(Sketcher.Constraint("Equal", 3, 4))
sketch3.addConstraint(Sketcher.Constraint("Equal", 4, 5))
sketch3.addConstraint(Sketcher.Constraint("Equal", 5, 6))
sketch3.addConstraint(Sketcher.Constraint("Equal", 6, 7))
sketch3.addConstraint(Sketcher.Constraint("Equal", 7, 8))
sketch3.addConstraint(Sketcher.Constraint("Equal", 8, 9))
sketch3.addConstraint(Sketcher.Constraint("Equal", 9, 10))
sketch3.addConstraint(Sketcher.Constraint("Equal", 10, 11))
sketch3.addConstraint(Sketcher.Constraint("Equal", 11, 12))
sketch3.addConstraint(Sketcher.Constraint("Equal", 12, 13))
sketch3.addConstraint(Sketcher.Constraint("Equal", 13, 14))
sketch3.addConstraint(Sketcher.Constraint("Equal", 14, 15))
sketch3.addConstraint(Sketcher.Constraint("Horizontal", 0, 3, 1, 3))
sketch3.addConstraint(Sketcher.Constraint("Horizontal", 2, 3, 3, 3))
sketch3.addConstraint(Sketcher.Constraint("Horizontal", 1, 3, 4, 3))
sketch3.addConstraint(Sketcher.Constraint("Horizontal", 3, 3, 5, 3))
sketch3.addConstraint(Sketcher.Constraint("Horizontal", 5, 3, 6, 3))
sketch3.addConstraint(Sketcher.Constraint("Horizontal", 4, 3, 7, 3))
sketch3.addConstraint(Sketcher.Constraint("Horizontal", 8, 3, 9, 3))
sketch3.addConstraint(Sketcher.Constraint("Horizontal", 10, 3, 11, 3))
sketch3.addConstraint(Sketcher.Constraint("Horizontal", 11, 3, 12, 3))
sketch3.addConstraint(Sketcher.Constraint("Horizontal", 12, 3, 13, 3))
sketch3.addConstraint(Sketcher.Constraint("Horizontal", 9, 3, 14, 3))
sketch3.addConstraint(Sketcher.Constraint("Horizontal", 14, 3, 15, 3))
sketch3.addConstraint(Sketcher.Constraint("Vertical", 1, 3, 2, 3))
sketch3.addConstraint(Sketcher.Constraint("Vertical", 0, 3, 3, 3))
sketch3.addConstraint(Sketcher.Constraint("Vertical", 4, 3, 5, 3))
sketch3.addConstraint(Sketcher.Constraint("Vertical", 6, 3, 7, 3))
sketch3.addConstraint(Sketcher.Constraint("Vertical", 7, 3, 8, 3))
sketch3.addConstraint(Sketcher.Constraint("Vertical", 5, 3, 9, 3))
sketch3.addConstraint(Sketcher.Constraint("Vertical", 9, 3, 10, 3))
sketch3.addConstraint(Sketcher.Constraint("Vertical", 8, 3, 11, 3))
sketch3.addConstraint(Sketcher.Constraint("Vertical", 3, 3, 12, 3))
sketch3.addConstraint(Sketcher.Constraint("Vertical", 2, 3, 13, 3))
sketch3.addConstraint(Sketcher.Constraint("Vertical", 13, 3, 14, 3))
sketch3.addConstraint(Sketcher.Constraint("Vertical", 12, 3, 15, 3))
sketch3.addConstraint(Sketcher.Constraint("Diameter", 0, 6.5))
sketch3.addConstraint(Sketcher.Constraint("DistanceX", 0, 3, 1, 3, 20.0))
sketch3.addConstraint(Sketcher.Constraint("DistanceY", 2, 3, 1, 3, 20.0))
sketch3.addConstraint(Sketcher.Constraint("DistanceX", 1, 3, 4, 3, 40.0))
sketch3.addConstraint(Sketcher.Constraint("DistanceX", 5, 3, 6, 3, 20.0))
sketch3.addConstraint(Sketcher.Constraint("DistanceY", 9, 3, 10, 3, 20.0))
sketch3.addConstraint(Sketcher.Constraint("DistanceX", -1, 1, 0, 3, 6.5))
sketch3.addConstraint(Sketcher.Constraint("DistanceY", -1, 1, 0, 3, 100.3))
sketch3.addConstraint(Sketcher.Constraint("DistanceY", -1, 1, 8, 3, 12.7))
sketch3.setExpression("Constraints[39]", "Params.sketch3_diameter")
pocket2 = doc.addObject("PartDesign::Pocket", "Pocket001")
body.addObject(pocket2)
pocket2.Profile = sketch3
pocket2.setExpression("Length", "Params.pocket2_length")

sketch4 = doc.addObject("Sketcher::SketchObject", "Sketch003")
body.addObject(sketch4)
sketch4.AttachmentSupport = (doc.XY_Plane, [""])
sketch4.MapMode = "FlatFace"
sketch4.AttachmentOffset = App.Placement(App.Vector(0, 0, 17), App.Rotation())
sketch4.addGeometry(Part.Circle(App.Vector(31.5, 61.5, 0), App.Vector(0, 0, 1), 4), False)
sketch4.addGeometry(Part.Circle(App.Vector(31.5, 51.5, 0), App.Vector(0, 0, 1), 4), False)
sketch4.addGeometry(Part.Circle(App.Vector(61.5, 51.5, 0), App.Vector(0, 0, 1), 4), False)
sketch4.addGeometry(Part.Circle(App.Vector(61.5, 61.5, 0), App.Vector(0, 0, 1), 4), False)
sketch4.addConstraint(Sketcher.Constraint("Equal", 0, 1))
sketch4.addConstraint(Sketcher.Constraint("Equal", 1, 2))
sketch4.addConstraint(Sketcher.Constraint("Equal", 2, 3))
sketch4.addConstraint(Sketcher.Constraint("Horizontal", 1, 3, 2, 3))
sketch4.addConstraint(Sketcher.Constraint("Horizontal", 0, 3, 3, 3))
sketch4.addConstraint(Sketcher.Constraint("Vertical", 0, 3, 1, 3))
sketch4.addConstraint(Sketcher.Constraint("Vertical", 2, 3, 3, 3))
sketch4.addConstraint(Sketcher.Constraint("Diameter", 0, 8.0))
sketch4.addConstraint(Sketcher.Constraint("DistanceY", 1, 3, 0, 3, 10.0))
sketch4.addConstraint(Sketcher.Constraint("DistanceX", 1, 3, 2, 3, 30.0))
sketch4.addConstraint(Sketcher.Constraint("DistanceX", -1, 1, 0, 3, 31.5))
sketch4.addConstraint(Sketcher.Constraint("DistanceY", -1, 1, 0, 3, 61.5))
sketch4.setExpression("Constraints[7]", "Params.sketch4_diameter")
pocket3 = doc.addObject("PartDesign::Pocket", "Pocket002")
body.addObject(pocket3)
pocket3.Profile = sketch4
pocket3.setExpression("Length", "Params.pocket3_length")

sketch5 = doc.addObject("Sketcher::SketchObject", "Sketch004")
body.addObject(sketch5)
sketch5.AttachmentSupport = (doc.XY_Plane, [""])
sketch5.MapMode = "FlatFace"
sketch5.AttachmentOffset = App.Placement(App.Vector(0, 0, 7), App.Rotation())
add_polygon(sketch5, [(10.668762, 76.5), (13.584381, 81.55), (19.415619, 81.55), (22.331238, 76.5), (19.415619, 71.45), (13.584381, 71.45)])
add_polygon(sketch5, [(73.584381, 81.55), (79.415619, 81.55), (82.331238, 76.5), (79.415619, 71.45), (73.584381, 71.45), (70.668762, 76.5)])
add_polygon(sketch5, [(73.584381, 41.55), (79.415619, 41.55), (82.331238, 36.5), (79.415619, 31.45), (73.584381, 31.45), (70.668762, 36.5)])
add_polygon(sketch5, [(13.584381, 41.55), (19.415619, 41.55), (22.331238, 36.5), (19.415619, 31.45), (13.584381, 31.45), (10.668762, 36.5)])
sketch5.addConstraint(Sketcher.Constraint("Horizontal", 1))
sketch5.addConstraint(Sketcher.Constraint("Horizontal", 4))
sketch5.addConstraint(Sketcher.Constraint("Horizontal", 6))
sketch5.addConstraint(Sketcher.Constraint("Horizontal", 9))
sketch5.addConstraint(Sketcher.Constraint("Horizontal", 12))
sketch5.addConstraint(Sketcher.Constraint("Horizontal", 15))
sketch5.addConstraint(Sketcher.Constraint("Horizontal", 18))
sketch5.addConstraint(Sketcher.Constraint("Horizontal", 21))
sketch5.addConstraint(Sketcher.Constraint("Parallel", 0, 3))
sketch5.addConstraint(Sketcher.Constraint("Parallel", 2, 5))
sketch5.addConstraint(Sketcher.Constraint("Parallel", 5, 7))
sketch5.addConstraint(Sketcher.Constraint("Parallel", 3, 8))
sketch5.addConstraint(Sketcher.Constraint("Parallel", 7, 10))
sketch5.addConstraint(Sketcher.Constraint("Parallel", 8, 11))
sketch5.addConstraint(Sketcher.Constraint("Parallel", 10, 13))
sketch5.addConstraint(Sketcher.Constraint("Parallel", 11, 14))
sketch5.addConstraint(Sketcher.Constraint("Parallel", 13, 16))
sketch5.addConstraint(Sketcher.Constraint("Parallel", 14, 17))
sketch5.addConstraint(Sketcher.Constraint("Parallel", 16, 19))
sketch5.addConstraint(Sketcher.Constraint("Parallel", 17, 20))
sketch5.addConstraint(Sketcher.Constraint("Parallel", 19, 22))
sketch5.addConstraint(Sketcher.Constraint("Parallel", 20, 23))
sketch5.addConstraint(Sketcher.Constraint("Horizontal", 2, 2, 5, 2))
sketch5.addConstraint(Sketcher.Constraint("Horizontal", 1, 2, 6, 2))
sketch5.addConstraint(Sketcher.Constraint("Horizontal", 5, 2, 7, 2))
sketch5.addConstraint(Sketcher.Constraint("Horizontal", 4, 2, 8, 2))
sketch5.addConstraint(Sketcher.Constraint("Horizontal", 7, 2, 10, 2))
sketch5.addConstraint(Sketcher.Constraint("Horizontal", 13, 2, 16, 2))
sketch5.addConstraint(Sketcher.Constraint("Horizontal", 17, 2, 18, 2))
sketch5.addConstraint(Sketcher.Constraint("Horizontal", 16, 2, 19, 2))
sketch5.addConstraint(Sketcher.Constraint("Horizontal", 15, 2, 20, 2))
sketch5.addConstraint(Sketcher.Constraint("Horizontal", 19, 2, 22, 2))
sketch5.addConstraint(Sketcher.Constraint("Vertical", 1, 2, 3, 2))
sketch5.addConstraint(Sketcher.Constraint("Vertical", 0, 2, 4, 2))
sketch5.addConstraint(Sketcher.Constraint("Vertical", 8, 2, 12, 2))
sketch5.addConstraint(Sketcher.Constraint("Vertical", 7, 2, 13, 2))
sketch5.addConstraint(Sketcher.Constraint("Vertical", 12, 2, 14, 2))
sketch5.addConstraint(Sketcher.Constraint("Vertical", 11, 2, 15, 2))
sketch5.addConstraint(Sketcher.Constraint("Vertical", 3, 2, 18, 2))
sketch5.addConstraint(Sketcher.Constraint("Vertical", 4, 2, 21, 2))
sketch5.addConstraint(Sketcher.Constraint("Equal", 4, 6))
sketch5.addConstraint(Sketcher.Constraint("Angle", 0, Q("59.999999 deg")))
sketch5.addConstraint(Sketcher.Constraint("DistanceX", 1, 2, 6, 2, 60.0))
sketch5.addConstraint(Sketcher.Constraint("DistanceY", 12, 2, 6, 2, 40.0))
sketch5.addConstraint(Sketcher.Constraint("DistanceY", -1, 1, 2, 2, 76.5))
sketch5.addConstraint(Sketcher.Constraint("DistanceY", 3, 2, 1, 2, 10.1))
sketch5.addConstraint(Sketcher.Constraint("DistanceX", 6, 1, 6, 2, 5.831238))
sketch5.addConstraint(Sketcher.Constraint("DistanceX", -1, 1, 0, 2, 13.584381))
pocket4 = doc.addObject("PartDesign::Pocket", "Pocket003")
body.addObject(pocket4)
pocket4.Profile = sketch5
pocket4.setExpression("Length", "Params.pocket4_length")
pocket4.Reversed = True

doc.recompute()
